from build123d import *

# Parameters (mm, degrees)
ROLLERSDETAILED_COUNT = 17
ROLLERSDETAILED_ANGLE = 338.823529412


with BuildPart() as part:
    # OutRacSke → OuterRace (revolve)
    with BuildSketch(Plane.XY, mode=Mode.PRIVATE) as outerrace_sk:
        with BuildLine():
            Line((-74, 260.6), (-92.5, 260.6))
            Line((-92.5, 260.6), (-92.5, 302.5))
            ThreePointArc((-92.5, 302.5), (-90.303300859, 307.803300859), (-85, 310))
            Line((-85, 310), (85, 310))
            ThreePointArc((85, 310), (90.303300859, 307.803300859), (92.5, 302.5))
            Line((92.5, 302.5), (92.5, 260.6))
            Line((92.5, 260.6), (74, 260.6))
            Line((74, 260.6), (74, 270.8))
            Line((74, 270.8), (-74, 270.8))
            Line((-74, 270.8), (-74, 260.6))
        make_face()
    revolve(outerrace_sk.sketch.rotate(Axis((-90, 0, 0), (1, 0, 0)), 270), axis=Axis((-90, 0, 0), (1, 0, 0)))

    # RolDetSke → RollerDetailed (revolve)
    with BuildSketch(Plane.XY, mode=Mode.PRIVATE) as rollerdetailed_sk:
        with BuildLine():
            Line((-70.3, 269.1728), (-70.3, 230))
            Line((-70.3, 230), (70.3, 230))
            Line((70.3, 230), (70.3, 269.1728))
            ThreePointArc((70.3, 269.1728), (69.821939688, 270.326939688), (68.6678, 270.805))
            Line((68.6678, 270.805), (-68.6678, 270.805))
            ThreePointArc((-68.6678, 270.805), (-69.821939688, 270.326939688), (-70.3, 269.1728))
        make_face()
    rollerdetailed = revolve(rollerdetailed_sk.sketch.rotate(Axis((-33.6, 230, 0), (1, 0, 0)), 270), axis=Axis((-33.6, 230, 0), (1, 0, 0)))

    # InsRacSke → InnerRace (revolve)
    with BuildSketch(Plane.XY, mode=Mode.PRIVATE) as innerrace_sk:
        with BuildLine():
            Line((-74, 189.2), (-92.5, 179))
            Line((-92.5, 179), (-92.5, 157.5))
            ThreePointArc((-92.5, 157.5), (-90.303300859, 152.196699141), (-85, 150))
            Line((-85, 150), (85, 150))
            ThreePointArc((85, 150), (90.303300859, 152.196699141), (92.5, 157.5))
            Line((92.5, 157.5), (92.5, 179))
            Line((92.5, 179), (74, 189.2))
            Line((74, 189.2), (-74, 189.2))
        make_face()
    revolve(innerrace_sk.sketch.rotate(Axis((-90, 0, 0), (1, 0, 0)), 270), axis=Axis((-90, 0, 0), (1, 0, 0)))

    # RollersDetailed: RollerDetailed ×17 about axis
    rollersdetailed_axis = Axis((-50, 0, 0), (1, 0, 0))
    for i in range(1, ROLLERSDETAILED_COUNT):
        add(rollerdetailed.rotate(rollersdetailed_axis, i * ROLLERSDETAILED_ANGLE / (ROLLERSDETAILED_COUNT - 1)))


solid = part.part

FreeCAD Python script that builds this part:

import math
import FreeCAD as App
import Part
import Sketcher
from FreeCAD import Vector
Q = App.Units.Quantity

doc = App.newDocument("Part")
body = doc.addObject("PartDesign::Body", "Body")

sketch1 = body.newObject("Sketcher::SketchObject", "Sketch")
sketch1.AttachmentSupport = (doc.getObject("XY_Plane"), [""])
sketch1.MapMode = "FlatFace"
sketch1.addGeometry([
    Part.LineSegment(Vector(-92, 261, 0), Vector(-74, 261, 0)),
    Part.LineSegment(Vector(-74, 261, 0), Vector(-74, 271, 0)),
    Part.LineSegment(Vector(-74, 271, 0), Vector(74, 271, 0)),
    Part.LineSegment(Vector(74, 271, 0), Vector(74, 261, 0)),
    Part.LineSegment(Vector(74, 261, 0), Vector(92, 261, 0)),
    Part.LineSegment(Vector(92, 261, 0), Vector(92, 302, 0)),
    Part.ArcOfCircle(Part.Circle(Vector(85, 302, 0), Vector(0, 0, 1), 8), math.radians(0), math.radians(90)),
    Part.LineSegment(Vector(85, 310, 0), Vector(-85, 310, 0)),
    Part.ArcOfCircle(Part.Circle(Vector(-85, 302, 0), Vector(0, 0, 1), 8), math.radians(90), math.radians(180)),
    Part.LineSegment(Vector(-92, 302, 0), Vector(-92, 261, 0)),
], False)
sketch1.addConstraint([
    Sketcher.Constraint("Coincident", 0, 2, 1, 1),
    Sketcher.Constraint("Coincident", 1, 2, 2, 1),
    Sketcher.Constraint("Coincident", 2, 2, 3, 1),
    Sketcher.Constraint("Coincident", 3, 2, 4, 1),
    Sketcher.Constraint("Coincident", 4, 2, 5, 1),
    Sketcher.Constraint("Tangent", 5, 2, 6, 1),
    Sketcher.Constraint("Tangent", 6, 2, 7, 1),
    Sketcher.Constraint("Tangent", 7, 2, 8, 1),
    Sketcher.Constraint("Tangent", 8, 2, 9, 1),
    Sketcher.Constraint("Coincident", 9, 2, 0, 1),
    Sketcher.Constraint("Horizontal", 0),
    Sketcher.Constraint("Vertical", 1),
    Sketcher.Constraint("Horizontal", 2),
    Sketcher.Constraint("Vertical", 3),
    Sketcher.Constraint("Horizontal", 4),
    Sketcher.Constraint("Vertical", 5),
    Sketcher.Constraint("Horizontal", 7),
    Sketcher.Constraint("Vertical", 9),
    Sketcher.Constraint("Equal", 6, 8),
    Sketcher.Constraint("Symmetric", 0, 2, 3, 2, -2),
    Sketcher.Constraint("Equal", 0, 4),
    Sketcher.Constraint("Radius", 6, Q("7.5 mm")),
    Sketcher.Constraint("DistanceX", 2, 1, 2, 2, Q("148 mm")),
    Sketcher.Constraint("DistanceX", 7, 2, 7, 1, Q("170 mm")),
    Sketcher.Constraint("DistanceY", 1, 1, 1, 2, Q("10.2 mm")),
    Sketcher.Constraint("DistanceY", 5, 1, 5, 2, Q("41.9 mm")),
    Sketcher.Constraint("DistanceY", -1, 1, 6, 2, Q("310 mm")),
])
revolution = body.newObject("PartDesign::Revolution", "Revolution")
revolution.Profile = sketch1
revolution.ReferenceAxis = (sketch1, ["H_Axis"])
revolution.Angle = 360

sketch2 = body.newObject("Sketcher::SketchObject", "Sketch001")
sketch2.AttachmentSupport = (doc.getObject("XY_Plane"), [""])
sketch2.MapMode = "FlatFace"
sketch2.addGeometry([
    Part.LineSegment(Vector(-70.3, 269.2, 0), Vector(-70.3, 230, 0)),
    Part.LineSegment(Vector(-70.3, 230, 0), Vector(70.3, 230, 0)),
    Part.LineSegment(Vector(70.3, 230, 0), Vector(70.3, 269.2, 0)),
    Part.ArcOfCircle(Part.Circle(Vector(68.7, 269.2, 0), Vector(0, 0, 1), 1.6), math.radians(0), math.radians(90)),
    Part.LineSegment(Vector(68.7, 270.8, 0), Vector(-68.7, 270.8, 0)),
    Part.ArcOfCircle(Part.Circle(Vector(-68.7, 269.2, 0), Vector(0, 0, 1), 1.6), math.radians(90), math.radians(180)),
], False)
sketch2.addGeometry(Part.LineSegment(Vector(-70.3, 230, 0), Vector(70.3, 230, 0)), True)
sketch2.addConstraint([
    Sketcher.Constraint("Coincident", 0, 2, 1, 1),
    Sketcher.Constraint("Coincident", 1, 2, 2, 1),
    Sketcher.Constraint("Tangent", 2, 2, 3, 1),
    Sketcher.Constraint("Tangent", 3, 2, 4, 1),
    Sketcher.Constraint("Tangent", 4, 2, 5, 1),
    Sketcher.Constraint("Tangent", 5, 2, 0, 1),
    Sketcher.Constraint("Vertical", 0),
    Sketcher.Constraint("Horizontal", 1),
    Sketcher.Constraint("Vertical", 2),
    Sketcher.Constraint("Horizontal", 4),
    Sketcher.Constraint("Horizontal", 6),
    Sketcher.Constraint("Coincident", 6, 1, 0, 2),
    Sketcher.Constraint("Equal", 3, 5),
    Sketcher.Constraint("Vertical", 2, 2, 6, 2),
    Sketcher.Constraint("DistanceX", 1, 1, 1, 2, Q("140.6 mm")),
    Sketcher.Constraint("DistanceY", -1, 1, 0, 2, Q("230 mm")),
    Sketcher.Constraint("DistanceX", 0, 2, -1, 1, Q("70.3 mm")),
    Sketcher.Constraint("Radius", 3, Q("1.6322 mm")),
    Sketcher.Constraint("DistanceY", 0, 2, 0, 1, Q("39.1728 mm")),
])
revolution2 = body.newObject("PartDesign::Revolution", "Revolution001")
revolution2.Profile = sketch2
revolution2.ReferenceAxis = (sketch2, ["Axis0"])
revolution2.Angle = 360

sketch3 = body.newObject("Sketcher::SketchObject", "Sketch002")
sketch3.AttachmentSupport = (doc.getObject("XY_Plane"), [""])
sketch3.MapMode = "FlatFace"
sketch3.addGeometry([
    Part.LineSegment(Vector(-74, 189, 0), Vector(-92, 179, 0)),
    Part.LineSegment(Vector(-92, 179, 0), Vector(-92, 158, 0)),
    Part.ArcOfCircle(Part.Circle(Vector(-85, 158, 0), Vector(0, 0, 1), 8), math.radians(180), math.radians(270)),
    Part.LineSegment(Vector(-85, 150, 0), Vector(85, 150, 0)),
    Part.ArcOfCircle(Part.Circle(Vector(85, 158, 0), Vector(0, 0, 1), 8), math.radians(-90), math.radians(0)),
    Part.LineSegment(Vector(92, 158, 0), Vector(92, 179, 0)),
    Part.LineSegment(Vector(92, 179, 0), Vector(74, 189, 0)),
    Part.LineSegment(Vector(74, 189, 0), Vector(-74, 189, 0)),
], False)
sketch3.addConstraint([
    Sketcher.Constraint("Coincident", 0, 2, 1, 1),
    Sketcher.Constraint("Tangent", 1, 2, 2, 1),
    Sketcher.Constraint("Tangent", 2, 2, 3, 1),
    Sketcher.Constraint("Tangent", 3, 2, 4, 1),
    Sketcher.Constraint("Tangent", 4, 2, 5, 1),
    Sketcher.Constraint("Coincident", 5, 2, 6, 1),
    Sketcher.Constraint("Coincident", 6, 2, 7, 1),
    Sketcher.Constraint("Coincident", 7, 2, 0, 1),
    Sketcher.Constraint("Vertical", 1),
    Sketcher.Constraint("Horizontal", 3),
    Sketcher.Constraint("Vertical", 5),
    Sketcher.Constraint("Horizontal", 7),
    Sketcher.Constraint("Equal", 2, 4),
    Sketcher.Constraint("Symmetric", 0, 2, 5, 2, -2),
    Sketcher.Constraint("Equal", 0, 6),
    Sketcher.Constraint("Radius", 2, Q("7.5 mm")),
    Sketcher.Constraint("DistanceX", 3, 1, 3, 2, Q("170 mm")),
    Sketcher.Constraint("DistanceX", 7, 2, 7, 1, Q("148 mm")),
    Sketcher.Constraint("DistanceY", 1, 2, 1, 1, Q("21.5 mm")),
    Sketcher.Constraint("DistanceY", -1, 1, 0, 2, Q("179 mm")),
    Sketcher.Constraint("DistanceY", -1, 1, 6, 2, Q("189.2 mm")),
])
revolution3 = body.newObject("PartDesign::Revolution", "Revolution002")
revolution3.Profile = sketch3
revolution3.ReferenceAxis = (sketch3, ["H_Axis"])
revolution3.Angle = 360
doc.recompute()

polarpattern = body.newObject("PartDesign::PolarPattern", "PolarPattern")
polarpattern.Originals = [revolution2]
polarpattern.Axis = (doc.getObject("X_Axis"), [""])
polarpattern.Angle = 360
polarpattern.Occurrences = 17
body.Tip = polarpattern

doc.recompute()
